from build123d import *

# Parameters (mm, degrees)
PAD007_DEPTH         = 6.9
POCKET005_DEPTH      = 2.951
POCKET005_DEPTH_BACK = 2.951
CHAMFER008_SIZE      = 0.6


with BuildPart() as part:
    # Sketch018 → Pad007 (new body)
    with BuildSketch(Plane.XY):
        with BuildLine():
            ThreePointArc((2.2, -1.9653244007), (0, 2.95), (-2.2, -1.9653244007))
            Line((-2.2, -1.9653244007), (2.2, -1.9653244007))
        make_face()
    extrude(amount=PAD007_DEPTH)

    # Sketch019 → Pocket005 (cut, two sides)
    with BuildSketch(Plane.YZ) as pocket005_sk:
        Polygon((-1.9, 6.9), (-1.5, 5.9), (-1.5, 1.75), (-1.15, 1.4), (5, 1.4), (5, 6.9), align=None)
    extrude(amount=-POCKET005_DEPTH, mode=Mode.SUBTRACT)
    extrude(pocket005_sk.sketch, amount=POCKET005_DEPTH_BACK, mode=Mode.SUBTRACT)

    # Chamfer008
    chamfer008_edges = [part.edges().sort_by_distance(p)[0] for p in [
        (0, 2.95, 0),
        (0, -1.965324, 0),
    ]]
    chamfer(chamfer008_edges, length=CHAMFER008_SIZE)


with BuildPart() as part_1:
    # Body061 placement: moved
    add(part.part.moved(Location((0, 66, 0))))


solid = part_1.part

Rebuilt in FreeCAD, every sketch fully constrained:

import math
import FreeCAD as App
import Part
import Sketcher
Q = App.Units.Quantity


def edges_at(feature, points):
    """Names of the edges that pass closest to the given points."""
    edges = feature.Shape.Edges
    near = lambda p: min(range(len(edges)), key=lambda i: edges[i].distToShape(Part.Vertex(*p))[0])
    return sorted({f"Edge{near(p) + 1}" for p in points})


def add_polygon(sketch, points):
    """Adds a closed chain of lines whose ends are joined by coincident constraints."""
    first, n = sketch.GeometryCount, len(points)
    for a, b in zip(points, points[1:] + points[:1]):
        sketch.addGeometry(Part.LineSegment(App.Vector(*a, 0), App.Vector(*b, 0)), False)
    for i in range(n):
        sketch.addConstraint(Sketcher.Constraint("Coincident", first + i, 2, first + (i + 1) % n, 1))

doc = App.newDocument("Part")
body = doc.addObject("PartDesign::Body", "Body")

# Sketch on XY plane
sketch1 = body.newObject("Sketcher::SketchObject", "Sketch")
sketch1.AttachmentSupport = (doc.getObject("XY_Plane"), [""])
sketch1.MapMode = "FlatFace"
sketch1.addGeometry([
    Part.ArcOfCircle(Part.Circle(App.Vector(0, 0, 0), App.Vector(0, 0, 1), 2.95), math.radians(-41.775348), math.radians(221.775348)),
    Part.LineSegment(App.Vector(-2.2, -1.965324, 0), App.Vector(2.2, -1.965324, 0)),
], False)
sketch1.addConstraint([
    Sketcher.Constraint("Coincident", 0, 1, 1, 2),
    Sketcher.Constraint("Coincident", 1, 1, 0, 2),
    Sketcher.Constraint("Horizontal", 1),
    Sketcher.Constraint("Coincident", 0, 3, -1, 1),
    Sketcher.Constraint("Radius", 0, Q("2.95 mm")),
    Sketcher.Constraint("DistanceX", 1, 1, 1, 2, Q("4.4 mm")),
])
pad1 = body.newObject("PartDesign::Pad", "Pad")
pad1.Profile = sketch1
pad1.Length = 6.9

# Sketch on YZ plane
sketch2 = body.newObject("Sketcher::SketchObject", "Sketch001")
sketch2.AttachmentSupport = (doc.getObject("YZ_Plane"), [""])
sketch2.MapMode = "FlatFace"
add_polygon(sketch2, [(-1.9, 6.9), (-1.5, 5.9), (-1.5, 1.75), (-1.15, 1.4), (5, 1.4), (5, 6.9)])  # lines 0-5
sketch2.addConstraint([
    Sketcher.Constraint("Vertical", 1),
    Sketcher.Constraint("Horizontal", 3),
    Sketcher.Constraint("Vertical", 4),
    Sketcher.Constraint("Horizontal", 5),
    Sketcher.Constraint("Angle", 2, Q("-45 deg")),
    Sketcher.Constraint("DistanceX", 5, 2, 5, 1, Q("6.9 mm")),
    Sketcher.Constraint("DistanceY", 4, 1, 4, 2, Q("5.5 mm")),
    Sketcher.Constraint("DistanceX", -1, 1, 3, 2, Q("5 mm")),
    Sketcher.Constraint("DistanceY", 0, 2, 4, 2, Q("1 mm")),
    Sketcher.Constraint("DistanceX", 3, 1, 3, 2, Q("6.15 mm")),
    Sketcher.Constraint("DistanceY", 1, 2, 1, 1, Q("4.15 mm")),
    Sketcher.Constraint("DistanceY", -1, 1, 0, 2, Q("5.9 mm")),
])
pocket1 = body.newObject("PartDesign::Pocket", "Pocket")
pocket1.Profile = sketch2
pocket1.Type = "ThroughAll"
pocket1.Midplane = True
doc.recompute()

chamfer = body.newObject("PartDesign::Chamfer", "Chamfer")
chamfer.Base = (pocket1, edges_at(pocket1, [(0, 2.95, 0), (0, -1.965, 0)]))
chamfer.Size = 0.6
body2 = doc.addObject("PartDesign::Body", "Body001")
doc.recompute()

body.Placement = App.Placement(App.Vector(0, 66, 0), App.Rotation(App.Vector(0, 0, 1), 0))
boolean = body2.newObject("PartDesign::Boolean", "Boolean")
boolean.Type = "Fuse"
boolean.addObjects([body])

doc.recompute()
